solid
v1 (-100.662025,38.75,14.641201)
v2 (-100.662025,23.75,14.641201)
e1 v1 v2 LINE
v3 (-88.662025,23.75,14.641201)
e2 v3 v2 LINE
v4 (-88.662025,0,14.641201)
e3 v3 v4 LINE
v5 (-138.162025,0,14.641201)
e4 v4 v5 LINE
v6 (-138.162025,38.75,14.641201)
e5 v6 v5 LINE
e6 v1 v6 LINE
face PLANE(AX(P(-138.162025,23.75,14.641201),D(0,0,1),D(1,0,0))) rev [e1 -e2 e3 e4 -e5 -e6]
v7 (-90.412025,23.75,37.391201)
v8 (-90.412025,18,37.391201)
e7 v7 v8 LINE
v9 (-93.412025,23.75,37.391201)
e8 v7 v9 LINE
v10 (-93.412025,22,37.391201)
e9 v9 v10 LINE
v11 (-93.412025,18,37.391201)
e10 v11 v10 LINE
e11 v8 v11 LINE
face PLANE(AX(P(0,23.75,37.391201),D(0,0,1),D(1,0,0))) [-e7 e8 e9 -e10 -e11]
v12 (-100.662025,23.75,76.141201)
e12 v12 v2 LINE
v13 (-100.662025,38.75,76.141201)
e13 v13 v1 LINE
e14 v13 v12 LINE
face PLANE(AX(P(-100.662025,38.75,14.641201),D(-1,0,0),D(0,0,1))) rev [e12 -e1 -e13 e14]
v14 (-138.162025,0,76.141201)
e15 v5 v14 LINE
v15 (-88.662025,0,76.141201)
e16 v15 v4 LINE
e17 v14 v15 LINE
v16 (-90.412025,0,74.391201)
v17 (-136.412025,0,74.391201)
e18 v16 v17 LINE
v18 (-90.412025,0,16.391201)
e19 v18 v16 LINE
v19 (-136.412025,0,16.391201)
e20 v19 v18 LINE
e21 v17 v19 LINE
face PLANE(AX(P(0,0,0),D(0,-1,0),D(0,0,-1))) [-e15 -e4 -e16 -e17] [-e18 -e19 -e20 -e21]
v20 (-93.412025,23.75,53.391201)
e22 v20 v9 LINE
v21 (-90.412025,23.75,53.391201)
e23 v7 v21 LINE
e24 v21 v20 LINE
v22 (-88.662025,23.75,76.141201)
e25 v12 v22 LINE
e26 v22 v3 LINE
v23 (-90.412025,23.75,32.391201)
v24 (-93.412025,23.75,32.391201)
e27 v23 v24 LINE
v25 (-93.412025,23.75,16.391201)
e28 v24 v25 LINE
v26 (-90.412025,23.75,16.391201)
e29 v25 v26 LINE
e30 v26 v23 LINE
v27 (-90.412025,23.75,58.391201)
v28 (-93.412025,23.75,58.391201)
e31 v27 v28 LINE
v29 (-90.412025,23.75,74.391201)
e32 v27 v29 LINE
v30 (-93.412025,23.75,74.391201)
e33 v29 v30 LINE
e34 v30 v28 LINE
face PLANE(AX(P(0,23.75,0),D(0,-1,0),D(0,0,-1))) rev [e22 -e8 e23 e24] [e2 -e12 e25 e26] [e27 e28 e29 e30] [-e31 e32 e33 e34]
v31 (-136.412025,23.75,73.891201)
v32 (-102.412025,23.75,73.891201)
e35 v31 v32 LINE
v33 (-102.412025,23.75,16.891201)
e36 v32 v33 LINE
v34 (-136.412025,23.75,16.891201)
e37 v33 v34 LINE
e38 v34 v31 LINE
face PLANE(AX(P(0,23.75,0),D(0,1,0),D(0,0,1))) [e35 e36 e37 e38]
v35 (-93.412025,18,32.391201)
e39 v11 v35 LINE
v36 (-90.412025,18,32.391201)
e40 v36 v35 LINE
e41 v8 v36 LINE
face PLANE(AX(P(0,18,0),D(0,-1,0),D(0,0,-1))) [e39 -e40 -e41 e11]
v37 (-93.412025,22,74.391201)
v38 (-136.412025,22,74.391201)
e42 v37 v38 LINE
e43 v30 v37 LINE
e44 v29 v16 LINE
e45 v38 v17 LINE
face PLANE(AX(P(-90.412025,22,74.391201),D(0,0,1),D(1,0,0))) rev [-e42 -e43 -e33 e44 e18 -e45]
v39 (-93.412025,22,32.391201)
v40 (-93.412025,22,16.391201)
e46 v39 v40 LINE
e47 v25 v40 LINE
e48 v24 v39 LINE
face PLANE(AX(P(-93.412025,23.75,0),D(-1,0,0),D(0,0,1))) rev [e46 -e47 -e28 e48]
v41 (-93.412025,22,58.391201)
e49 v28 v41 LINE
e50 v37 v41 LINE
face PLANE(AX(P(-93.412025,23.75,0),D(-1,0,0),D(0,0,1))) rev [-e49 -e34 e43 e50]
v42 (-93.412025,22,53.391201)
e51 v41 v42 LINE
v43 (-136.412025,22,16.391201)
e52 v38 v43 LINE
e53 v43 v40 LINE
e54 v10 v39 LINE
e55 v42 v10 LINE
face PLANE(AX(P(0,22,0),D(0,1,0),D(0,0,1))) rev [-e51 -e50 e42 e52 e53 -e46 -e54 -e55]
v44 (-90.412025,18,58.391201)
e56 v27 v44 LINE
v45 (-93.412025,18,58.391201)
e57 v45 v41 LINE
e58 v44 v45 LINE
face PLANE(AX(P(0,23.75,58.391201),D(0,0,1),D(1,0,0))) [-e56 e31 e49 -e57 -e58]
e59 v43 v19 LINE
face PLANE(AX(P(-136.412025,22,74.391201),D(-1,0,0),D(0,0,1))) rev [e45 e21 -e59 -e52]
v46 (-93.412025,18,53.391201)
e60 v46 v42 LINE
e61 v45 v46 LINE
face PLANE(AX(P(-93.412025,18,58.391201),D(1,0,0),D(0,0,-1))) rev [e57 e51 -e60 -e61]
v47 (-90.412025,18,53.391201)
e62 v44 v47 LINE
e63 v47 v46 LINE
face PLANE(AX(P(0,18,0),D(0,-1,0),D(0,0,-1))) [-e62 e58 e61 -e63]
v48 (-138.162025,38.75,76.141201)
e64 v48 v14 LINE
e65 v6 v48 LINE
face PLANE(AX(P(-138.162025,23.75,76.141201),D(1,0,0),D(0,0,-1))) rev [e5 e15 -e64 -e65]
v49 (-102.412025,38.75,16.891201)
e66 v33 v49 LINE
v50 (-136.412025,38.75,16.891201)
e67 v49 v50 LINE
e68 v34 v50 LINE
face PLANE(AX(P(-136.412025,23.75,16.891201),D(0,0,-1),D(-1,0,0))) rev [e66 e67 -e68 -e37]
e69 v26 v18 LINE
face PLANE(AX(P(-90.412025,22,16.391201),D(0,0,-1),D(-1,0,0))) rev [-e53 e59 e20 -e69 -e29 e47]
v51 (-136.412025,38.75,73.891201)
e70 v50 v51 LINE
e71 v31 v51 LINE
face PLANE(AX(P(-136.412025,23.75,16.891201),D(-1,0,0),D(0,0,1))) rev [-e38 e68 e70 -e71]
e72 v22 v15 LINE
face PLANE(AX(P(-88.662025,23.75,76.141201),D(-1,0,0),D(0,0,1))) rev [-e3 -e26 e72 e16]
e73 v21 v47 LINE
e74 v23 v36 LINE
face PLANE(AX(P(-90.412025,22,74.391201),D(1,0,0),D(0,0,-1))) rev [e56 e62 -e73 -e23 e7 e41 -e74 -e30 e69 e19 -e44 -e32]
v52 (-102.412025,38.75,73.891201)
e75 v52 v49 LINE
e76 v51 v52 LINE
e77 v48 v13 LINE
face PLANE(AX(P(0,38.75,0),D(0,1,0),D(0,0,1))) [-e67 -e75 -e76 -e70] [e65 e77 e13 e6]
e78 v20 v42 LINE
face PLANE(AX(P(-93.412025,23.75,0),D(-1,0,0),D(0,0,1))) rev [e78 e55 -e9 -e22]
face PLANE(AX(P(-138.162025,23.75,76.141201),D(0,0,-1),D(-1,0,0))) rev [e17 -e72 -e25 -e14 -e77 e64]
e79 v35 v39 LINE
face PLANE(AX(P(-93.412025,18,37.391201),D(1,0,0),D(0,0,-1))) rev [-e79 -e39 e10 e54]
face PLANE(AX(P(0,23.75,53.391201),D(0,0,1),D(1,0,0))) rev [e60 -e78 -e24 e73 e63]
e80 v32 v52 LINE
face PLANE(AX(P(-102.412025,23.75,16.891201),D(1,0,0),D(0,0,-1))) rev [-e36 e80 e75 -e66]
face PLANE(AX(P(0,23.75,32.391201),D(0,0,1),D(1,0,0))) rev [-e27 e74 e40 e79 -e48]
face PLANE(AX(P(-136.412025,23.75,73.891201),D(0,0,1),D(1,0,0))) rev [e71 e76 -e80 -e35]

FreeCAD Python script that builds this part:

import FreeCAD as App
import Part
import Sketcher
Q = App.Units.Quantity

doc = App.newDocument("Part")
body = doc.addObject("PartDesign::Body", "Body")

# Sketch on XZ plane
sketch1 = doc.addObject("Sketcher::SketchObject", "Sketch")
body.addObject(sketch1)
sketch1.AttachmentSupport = (doc.XZ_Plane, [""])
sketch1.MapMode = "FlatFace"
sketch1.addGeometry(Part.LineSegment(App.Vector(-138, 15, 0), App.Vector(-138, 76, 0)), False)
sketch1.addGeometry(Part.LineSegment(App.Vector(-138, 76, 0), App.Vector(-89, 76, 0)), False)
sketch1.addGeometry(Part.LineSegment(App.Vector(-89, 76, 0), App.Vector(-89, 15, 0)), False)
sketch1.addGeometry(Part.LineSegment(App.Vector(-89, 15, 0), App.Vector(-138, 15, 0)), False)
sketch1.addConstraint(Sketcher.Constraint("Coincident", 0, 2, 1, 1))
sketch1.addConstraint(Sketcher.Constraint("Coincident", 1, 2, 2, 1))
sketch1.addConstraint(Sketcher.Constraint("Coincident", 2, 2, 3, 1))
sketch1.addConstraint(Sketcher.Constraint("Coincident", 3, 2, 0, 1))
sketch1.addConstraint(Sketcher.Constraint("Vertical", 0))
sketch1.addConstraint(Sketcher.Constraint("Horizontal", 1))
sketch1.addConstraint(Sketcher.Constraint("Vertical", 2))
sketch1.addConstraint(Sketcher.Constraint("Horizontal", 3))
sketch1.addConstraint(Sketcher.Constraint("DistanceX", 1, 1, 1, 2, Q("49.5 mm")))
sketch1.addConstraint(Sketcher.Constraint("DistanceY", 0, 1, 0, 2, Q("61.5 mm")))
sketch1.addConstraint(Sketcher.Constraint("DistanceY", -1, 1, 0, 2, Q("76.141201 mm")))
sketch1.addConstraint(Sketcher.Constraint("DistanceX", 0, 2, -1, 1, Q("138.162025 mm")))
pad1 = doc.addObject("PartDesign::Pad", "Pad")
body.addObject(pad1)
pad1.Profile = sketch1
pad1.Length = 23.75
pad1.Reversed = True

# Sketch on XZ plane
sketch2 = doc.addObject("Sketcher::SketchObject", "Sketch001")
body.addObject(sketch2)
sketch2.AttachmentSupport = (doc.XZ_Plane, [""])
sketch2.MapMode = "FlatFace"
sketch2.addGeometry(Part.LineSegment(App.Vector(-90, 16, 0), App.Vector(-90, 74, 0)), False)
sketch2.addGeometry(Part.LineSegment(App.Vector(-90, 74, 0), App.Vector(-136, 74, 0)), False)
sketch2.addGeometry(Part.LineSegment(App.Vector(-136, 74, 0), App.Vector(-136, 16, 0)), False)
sketch2.addGeometry(Part.LineSegment(App.Vector(-136, 16, 0), App.Vector(-90, 16, 0)), False)
sketch2.addConstraint(Sketcher.Constraint("Coincident", 0, 2, 1, 1))
sketch2.addConstraint(Sketcher.Constraint("Coincident", 1, 2, 2, 1))
sketch2.addConstraint(Sketcher.Constraint("Coincident", 2, 2, 3, 1))
sketch2.addConstraint(Sketcher.Constraint("Coincident", 3, 2, 0, 1))
sketch2.addConstraint(Sketcher.Constraint("Vertical", 0))
sketch2.addConstraint(Sketcher.Constraint("Horizontal", 1))
sketch2.addConstraint(Sketcher.Constraint("Vertical", 2))
sketch2.addConstraint(Sketcher.Constraint("Horizontal", 3))
sketch2.addConstraint(Sketcher.Constraint("DistanceX", 1, 2, 1, 1, Q("46 mm")))
sketch2.addConstraint(Sketcher.Constraint("DistanceY", 0, 1, 0, 2, Q("58 mm")))
sketch2.addConstraint(Sketcher.Constraint("DistanceY", -1, 1, 0, 2, Q("74.391201 mm")))
sketch2.addConstraint(Sketcher.Constraint("DistanceX", 0, 2, -1, 1, Q("90.412025 mm")))
pocket1 = doc.addObject("PartDesign::Pocket", "Pocket")
body.addObject(pocket1)
pocket1.Profile = sketch2
pocket1.Length = 22

# Sketch on XZ plane
sketch3 = doc.addObject("Sketcher::SketchObject", "Sketch002")
body.addObject(sketch3)
sketch3.AttachmentSupport = (doc.XZ_Plane, [""])
sketch3.MapMode = "FlatFace"
sketch3.AttachmentOffset = App.Placement(App.Vector(0, 0, -22), App.Rotation())
sketch3.addGeometry(Part.LineSegment(App.Vector(-90.4, 58.4, 0), App.Vector(-90.4, 74.4, 0)), False)
sketch3.addGeometry(Part.LineSegment(App.Vector(-90.4, 74.4, 0), App.Vector(-93.4, 74.4, 0)), False)
sketch3.addGeometry(Part.LineSegment(App.Vector(-93.4, 74.4, 0), App.Vector(-93.4, 58.4, 0)), False)
sketch3.addGeometry(Part.LineSegment(App.Vector(-93.4, 58.4, 0), App.Vector(-90.4, 58.4, 0)), False)
sketch3.addGeometry(Part.LineSegment(App.Vector(-90.4, 16.4, 0), App.Vector(-90.4, 32.4, 0)), False)
sketch3.addGeometry(Part.LineSegment(App.Vector(-90.4, 32.4, 0), App.Vector(-93.4, 32.4, 0)), False)
sketch3.addGeometry(Part.LineSegment(App.Vector(-93.4, 32.4, 0), App.Vector(-93.4, 16.4, 0)), False)
sketch3.addGeometry(Part.LineSegment(App.Vector(-93.4, 16.4, 0), App.Vector(-90.4, 16.4, 0)), False)
sketch3.addGeometry(Part.LineSegment(App.Vector(-90.4, 37.4, 0), App.Vector(-90.4, 53.4, 0)), False)
sketch3.addGeometry(Part.LineSegment(App.Vector(-90.4, 53.4, 0), App.Vector(-93.4, 53.4, 0)), False)
sketch3.addGeometry(Part.LineSegment(App.Vector(-93.4, 53.4, 0), App.Vector(-93.4, 37.4, 0)), False)
sketch3.addGeometry(Part.LineSegment(App.Vector(-93.4, 37.4, 0), App.Vector(-90.4, 37.4, 0)), False)
sketch3.addConstraint(Sketcher.Constraint("Coincident", 0, 2, 1, 1))
sketch3.addConstraint(Sketcher.Constraint("Coincident", 1, 2, 2, 1))
sketch3.addConstraint(Sketcher.Constraint("Coincident", 2, 2, 3, 1))
sketch3.addConstraint(Sketcher.Constraint("Coincident", 3, 2, 0, 1))
sketch3.addConstraint(Sketcher.Constraint("Coincident", 4, 2, 5, 1))
sketch3.addConstraint(Sketcher.Constraint("Coincident", 5, 2, 6, 1))
sketch3.addConstraint(Sketcher.Constraint("Coincident", 6, 2, 7, 1))
sketch3.addConstraint(Sketcher.Constraint("Coincident", 7, 2, 4, 1))
sketch3.addConstraint(Sketcher.Constraint("Coincident", 8, 2, 9, 1))
sketch3.addConstraint(Sketcher.Constraint("Coincident", 9, 2, 10, 1))
sketch3.addConstraint(Sketcher.Constraint("Coincident", 10, 2, 11, 1))
sketch3.addConstraint(Sketcher.Constraint("Coincident", 11, 2, 8, 1))
sketch3.addConstraint(Sketcher.Constraint("Vertical", 0))
sketch3.addConstraint(Sketcher.Constraint("Horizontal", 1))
sketch3.addConstraint(Sketcher.Constraint("Vertical", 2))
sketch3.addConstraint(Sketcher.Constraint("Horizontal", 3))
sketch3.addConstraint(Sketcher.Constraint("Vertical", 4))
sketch3.addConstraint(Sketcher.Constraint("Horizontal", 5))
sketch3.addConstraint(Sketcher.Constraint("Vertical", 6))
sketch3.addConstraint(Sketcher.Constraint("Horizontal", 7))
sketch3.addConstraint(Sketcher.Constraint("Vertical", 8))
sketch3.addConstraint(Sketcher.Constraint("Horizontal", 9))
sketch3.addConstraint(Sketcher.Constraint("Vertical", 10))
sketch3.addConstraint(Sketcher.Constraint("Horizontal", 11))
sketch3.addConstraint(Sketcher.Constraint("Vertical", 3, 2, 4, 2))
sketch3.addConstraint(Sketcher.Constraint("Vertical", 2, 2, 5, 2))
sketch3.addConstraint(Sketcher.Constraint("Vertical", 7, 2, 8, 2))
sketch3.addConstraint(Sketcher.Constraint("Vertical", 6, 2, 9, 2))
sketch3.addConstraint(Sketcher.Constraint("Equal", 2, 4))
sketch3.addConstraint(Sketcher.Constraint("Equal", 6, 8))
sketch3.addConstraint(Sketcher.Constraint("DistanceX", 1, 2, 1, 1, Q("3 mm")))
sketch3.addConstraint(Sketcher.Constraint("DistanceY", 0, 1, 0, 2, Q("16 mm")))
sketch3.addConstraint(Sketcher.Constraint("DistanceY", 4, 2, 3, 2, Q("26 mm")))
sketch3.addConstraint(Sketcher.Constraint("DistanceY", 8, 2, 3, 2, Q("5 mm")))
sketch3.addConstraint(Sketcher.Constraint("DistanceY", -1, 1, 0, 2, Q("74.391201 mm")))
sketch3.addConstraint(Sketcher.Constraint("DistanceX", 0, 2, -1, 1, Q("90.412025 mm")))
pocket2 = doc.addObject("PartDesign::Pocket", "Pocket001")
body.addObject(pocket2)
pocket2.Profile = sketch3
pocket2.Length = 1.75

# Sketch on XZ plane
sketch4 = doc.addObject("Sketcher::SketchObject", "Sketch003")
body.addObject(sketch4)
sketch4.AttachmentSupport = (doc.XZ_Plane, [""])
sketch4.MapMode = "FlatFace"
sketch4.AttachmentOffset = App.Placement(App.Vector(0, 0, -22), App.Rotation())
sketch4.addGeometry(Part.LineSegment(App.Vector(-90.4, 53.4, 0), App.Vector(-90.4, 58.4, 0)), False)
sketch4.addGeometry(Part.LineSegment(App.Vector(-90.4, 58.4, 0), App.Vector(-93.4, 58.4, 0)), False)
sketch4.addGeometry(Part.LineSegment(App.Vector(-93.4, 58.4, 0), App.Vector(-93.4, 53.4, 0)), False)
sketch4.addGeometry(Part.LineSegment(App.Vector(-93.4, 53.4, 0), App.Vector(-90.4, 53.4, 0)), False)
sketch4.addGeometry(Part.LineSegment(App.Vector(-90.4, 32.4, 0), App.Vector(-90.4, 37.4, 0)), False)
sketch4.addGeometry(Part.LineSegment(App.Vector(-90.4, 37.4, 0), App.Vector(-93.4, 37.4, 0)), False)
sketch4.addGeometry(Part.LineSegment(App.Vector(-93.4, 37.4, 0), App.Vector(-93.4, 32.4, 0)), False)
sketch4.addGeometry(Part.LineSegment(App.Vector(-93.4, 32.4, 0), App.Vector(-90.4, 32.4, 0)), False)
sketch4.addConstraint(Sketcher.Constraint("Coincident", 0, 2, 1, 1))
sketch4.addConstraint(Sketcher.Constraint("Coincident", 1, 2, 2, 1))
sketch4.addConstraint(Sketcher.Constraint("Coincident", 2, 2, 3, 1))
sketch4.addConstraint(Sketcher.Constraint("Coincident", 3, 2, 0, 1))
sketch4.addConstraint(Sketcher.Constraint("Coincident", 4, 2, 5, 1))
sketch4.addConstraint(Sketcher.Constraint("Coincident", 5, 2, 6, 1))
sketch4.addConstraint(Sketcher.Constraint("Coincident", 6, 2, 7, 1))
sketch4.addConstraint(Sketcher.Constraint("Coincident", 7, 2, 4, 1))
sketch4.addConstraint(Sketcher.Constraint("Vertical", 0))
sketch4.addConstraint(Sketcher.Constraint("Horizontal", 1))
sketch4.addConstraint(Sketcher.Constraint("Vertical", 2))
sketch4.addConstraint(Sketcher.Constraint("Horizontal", 3))
sketch4.addConstraint(Sketcher.Constraint("Vertical", 4))
sketch4.addConstraint(Sketcher.Constraint("Horizontal", 5))
sketch4.addConstraint(Sketcher.Constraint("Vertical", 6))
sketch4.addConstraint(Sketcher.Constraint("Horizontal", 7))
sketch4.addConstraint(Sketcher.Constraint("Vertical", 3, 2, 4, 2))
sketch4.addConstraint(Sketcher.Constraint("Vertical", 2, 2, 5, 2))
sketch4.addConstraint(Sketcher.Constraint("Equal", 2, 4))
sketch4.addConstraint(Sketcher.Constraint("DistanceX", 1, 2, 1, 1, Q("3 mm")))
sketch4.addConstraint(Sketcher.Constraint("DistanceY", 0, 1, 0, 2, Q("5 mm")))
sketch4.addConstraint(Sketcher.Constraint("DistanceY", 4, 2, 3, 2, Q("16 mm")))
sketch4.addConstraint(Sketcher.Constraint("DistanceY", -1, 1, 0, 2, Q("58.391201 mm")))
sketch4.addConstraint(Sketcher.Constraint("DistanceX", 0, 2, -1, 1, Q("90.412025 mm")))
pad2 = doc.addObject("PartDesign::Pad", "Pad001")
body.addObject(pad2)
pad2.Profile = sketch4
pad2.Length = 4

# Sketch on XZ plane
sketch5 = doc.addObject("Sketcher::SketchObject", "Sketch004")
body.addObject(sketch5)
sketch5.AttachmentSupport = (doc.XZ_Plane, [""])
sketch5.MapMode = "FlatFace"
sketch5.AttachmentOffset = App.Placement(App.Vector(0, 0, -23.75), App.Rotation())
sketch5.addGeometry(Part.LineSegment(App.Vector(-138, 15, 0), App.Vector(-138, 76, 0)), False)
sketch5.addGeometry(Part.LineSegment(App.Vector(-138, 76, 0), App.Vector(-101, 76, 0)), False)
sketch5.addGeometry(Part.LineSegment(App.Vector(-101, 76, 0), App.Vector(-101, 15, 0)), False)
sketch5.addGeometry(Part.LineSegment(App.Vector(-101, 15, 0), App.Vector(-138, 15, 0)), False)
sketch5.addConstraint(Sketcher.Constraint("Coincident", 0, 2, 1, 1))
sketch5.addConstraint(Sketcher.Constraint("Coincident", 1, 2, 2, 1))
sketch5.addConstraint(Sketcher.Constraint("Coincident", 2, 2, 3, 1))
sketch5.addConstraint(Sketcher.Constraint("Coincident", 3, 2, 0, 1))
sketch5.addConstraint(Sketcher.Constraint("Vertical", 0))
sketch5.addConstraint(Sketcher.Constraint("Horizontal", 1))
sketch5.addConstraint(Sketcher.Constraint("Vertical", 2))
sketch5.addConstraint(Sketcher.Constraint("Horizontal", 3))
sketch5.addConstraint(Sketcher.Constraint("DistanceX", 1, 1, 1, 2, Q("37.5 mm")))
sketch5.addConstraint(Sketcher.Constraint("DistanceY", 0, 1, 0, 2, Q("61.5 mm")))
sketch5.addConstraint(Sketcher.Constraint("DistanceY", -1, 1, 0, 2, Q("76.141201 mm")))
sketch5.addConstraint(Sketcher.Constraint("DistanceX", 0, 2, -1, 1, Q("138.162025 mm")))
pad3 = doc.addObject("PartDesign::Pad", "Pad002")
body.addObject(pad3)
pad3.Profile = sketch5
pad3.Length = 15
pad3.Reversed = True

# Sketch on XZ plane
sketch6 = doc.addObject("Sketcher::SketchObject", "Sketch005")
body.addObject(sketch6)
sketch6.AttachmentSupport = (doc.XZ_Plane, [""])
sketch6.MapMode = "FlatFace"
sketch6.AttachmentOffset = App.Placement(App.Vector(0, 0, -38.75), App.Rotation())
sketch6.addGeometry(Part.LineSegment(App.Vector(-136, 17, 0), App.Vector(-136, 74, 0)), False)
sketch6.addGeometry(Part.LineSegment(App.Vector(-136, 74, 0), App.Vector(-102, 74, 0)), False)
sketch6.addGeometry(Part.LineSegment(App.Vector(-102, 74, 0), App.Vector(-102, 17, 0)), False)
sketch6.addGeometry(Part.LineSegment(App.Vector(-102, 17, 0), App.Vector(-136, 17, 0)), False)
sketch6.addConstraint(Sketcher.Constraint("Coincident", 0, 2, 1, 1))
sketch6.addConstraint(Sketcher.Constraint("Coincident", 1, 2, 2, 1))
sketch6.addConstraint(Sketcher.Constraint("Coincident", 2, 2, 3, 1))
sketch6.addConstraint(Sketcher.Constraint("Coincident", 3, 2, 0, 1))
sketch6.addConstraint(Sketcher.Constraint("Vertical", 0))
sketch6.addConstraint(Sketcher.Constraint("Horizontal", 1))
sketch6.addConstraint(Sketcher.Constraint("Vertical", 2))
sketch6.addConstraint(Sketcher.Constraint("Horizontal", 3))
sketch6.addConstraint(Sketcher.Constraint("DistanceX", 1, 1, 1, 2, Q("34 mm")))
sketch6.addConstraint(Sketcher.Constraint("DistanceY", 0, 1, 0, 2, Q("57 mm")))
sketch6.addConstraint(Sketcher.Constraint("DistanceY", -1, 1, 0, 2, Q("73.891201 mm")))
sketch6.addConstraint(Sketcher.Constraint("DistanceX", 0, 2, -1, 1, Q("136.412025 mm")))
pocket3 = doc.addObject("PartDesign::Pocket", "Pocket002")
body.addObject(pocket3)
pocket3.Profile = sketch6
pocket3.Length = 15
pocket3.Reversed = True

doc.recompute()
